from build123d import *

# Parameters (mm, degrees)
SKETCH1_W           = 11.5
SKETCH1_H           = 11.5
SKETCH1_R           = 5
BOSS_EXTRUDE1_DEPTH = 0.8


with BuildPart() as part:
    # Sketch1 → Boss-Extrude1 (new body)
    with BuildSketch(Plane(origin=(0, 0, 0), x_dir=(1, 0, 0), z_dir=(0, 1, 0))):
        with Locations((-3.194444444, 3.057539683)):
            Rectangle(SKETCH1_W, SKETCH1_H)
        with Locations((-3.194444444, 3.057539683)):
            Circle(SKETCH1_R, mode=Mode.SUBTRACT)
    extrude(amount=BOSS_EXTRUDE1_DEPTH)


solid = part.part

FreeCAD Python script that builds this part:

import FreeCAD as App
import Part
import Sketcher
Q = App.Units.Quantity


def add_polygon(sketch, points):
    """Adds a closed chain of lines whose ends are joined by coincident constraints."""
    first, n = sketch.GeometryCount, len(points)
    for a, b in zip(points, points[1:] + points[:1]):
        sketch.addGeometry(Part.LineSegment(App.Vector(*a, 0), App.Vector(*b, 0)), False)
    for i in range(n):
        sketch.addConstraint(Sketcher.Constraint("Coincident", first + i, 2, first + (i + 1) % n, 1))

doc = App.newDocument("Part")
body = doc.addObject("PartDesign::Body", "Body")

# Sketch on XZ plane
sketch1 = body.newObject("Sketcher::SketchObject", "Sketch")
sketch1.AttachmentSupport = (doc.getObject("XZ_Plane"), [""])
sketch1.MapMode = "FlatFace"
add_polygon(sketch1, [(-8.944444, -8.80754), (-8.944444, 2.69246), (2.555556, 2.69246), (2.555556, -8.80754)])  # lines 0-3
sketch1.addGeometry(Part.Circle(App.Vector(-3.194444, -3.05754, 0), App.Vector(0, 0, 1), 5), False)  # 4
sketch1.addConstraint(Sketcher.Constraint("Vertical", 0))
sketch1.addConstraint(Sketcher.Constraint("Horizontal", 1))
sketch1.addConstraint(Sketcher.Constraint("Vertical", 2))
sketch1.addConstraint(Sketcher.Constraint("Horizontal", 3))
sketch1.addConstraint(Sketcher.Constraint("Equal", 3, 0))
sketch1.addConstraint(Sketcher.Constraint("Diameter", 4, Q("10 mm")))
sketch1.addConstraint(Sketcher.Constraint("DistanceX", 1, 1, 1, 2, Q("11.5 mm")))
sketch1.addConstraint(Sketcher.Constraint("DistanceX", 0, 2, 4, 3, Q("5.75 mm")))
sketch1.addConstraint(Sketcher.Constraint("DistanceY", 4, 3, 0, 2, Q("5.75 mm")))
sketch1.addConstraint(Sketcher.Constraint("DistanceY", 4, 3, -1, 1, Q("3.05754 mm")))
sketch1.addConstraint(Sketcher.Constraint("DistanceX", 4, 3, -1, 1, Q("3.194444 mm")))
pad1 = body.newObject("PartDesign::Pad", "Pad")
pad1.Profile = sketch1
pad1.Length = 0.8
pad1.Reversed = True

doc.recompute()
